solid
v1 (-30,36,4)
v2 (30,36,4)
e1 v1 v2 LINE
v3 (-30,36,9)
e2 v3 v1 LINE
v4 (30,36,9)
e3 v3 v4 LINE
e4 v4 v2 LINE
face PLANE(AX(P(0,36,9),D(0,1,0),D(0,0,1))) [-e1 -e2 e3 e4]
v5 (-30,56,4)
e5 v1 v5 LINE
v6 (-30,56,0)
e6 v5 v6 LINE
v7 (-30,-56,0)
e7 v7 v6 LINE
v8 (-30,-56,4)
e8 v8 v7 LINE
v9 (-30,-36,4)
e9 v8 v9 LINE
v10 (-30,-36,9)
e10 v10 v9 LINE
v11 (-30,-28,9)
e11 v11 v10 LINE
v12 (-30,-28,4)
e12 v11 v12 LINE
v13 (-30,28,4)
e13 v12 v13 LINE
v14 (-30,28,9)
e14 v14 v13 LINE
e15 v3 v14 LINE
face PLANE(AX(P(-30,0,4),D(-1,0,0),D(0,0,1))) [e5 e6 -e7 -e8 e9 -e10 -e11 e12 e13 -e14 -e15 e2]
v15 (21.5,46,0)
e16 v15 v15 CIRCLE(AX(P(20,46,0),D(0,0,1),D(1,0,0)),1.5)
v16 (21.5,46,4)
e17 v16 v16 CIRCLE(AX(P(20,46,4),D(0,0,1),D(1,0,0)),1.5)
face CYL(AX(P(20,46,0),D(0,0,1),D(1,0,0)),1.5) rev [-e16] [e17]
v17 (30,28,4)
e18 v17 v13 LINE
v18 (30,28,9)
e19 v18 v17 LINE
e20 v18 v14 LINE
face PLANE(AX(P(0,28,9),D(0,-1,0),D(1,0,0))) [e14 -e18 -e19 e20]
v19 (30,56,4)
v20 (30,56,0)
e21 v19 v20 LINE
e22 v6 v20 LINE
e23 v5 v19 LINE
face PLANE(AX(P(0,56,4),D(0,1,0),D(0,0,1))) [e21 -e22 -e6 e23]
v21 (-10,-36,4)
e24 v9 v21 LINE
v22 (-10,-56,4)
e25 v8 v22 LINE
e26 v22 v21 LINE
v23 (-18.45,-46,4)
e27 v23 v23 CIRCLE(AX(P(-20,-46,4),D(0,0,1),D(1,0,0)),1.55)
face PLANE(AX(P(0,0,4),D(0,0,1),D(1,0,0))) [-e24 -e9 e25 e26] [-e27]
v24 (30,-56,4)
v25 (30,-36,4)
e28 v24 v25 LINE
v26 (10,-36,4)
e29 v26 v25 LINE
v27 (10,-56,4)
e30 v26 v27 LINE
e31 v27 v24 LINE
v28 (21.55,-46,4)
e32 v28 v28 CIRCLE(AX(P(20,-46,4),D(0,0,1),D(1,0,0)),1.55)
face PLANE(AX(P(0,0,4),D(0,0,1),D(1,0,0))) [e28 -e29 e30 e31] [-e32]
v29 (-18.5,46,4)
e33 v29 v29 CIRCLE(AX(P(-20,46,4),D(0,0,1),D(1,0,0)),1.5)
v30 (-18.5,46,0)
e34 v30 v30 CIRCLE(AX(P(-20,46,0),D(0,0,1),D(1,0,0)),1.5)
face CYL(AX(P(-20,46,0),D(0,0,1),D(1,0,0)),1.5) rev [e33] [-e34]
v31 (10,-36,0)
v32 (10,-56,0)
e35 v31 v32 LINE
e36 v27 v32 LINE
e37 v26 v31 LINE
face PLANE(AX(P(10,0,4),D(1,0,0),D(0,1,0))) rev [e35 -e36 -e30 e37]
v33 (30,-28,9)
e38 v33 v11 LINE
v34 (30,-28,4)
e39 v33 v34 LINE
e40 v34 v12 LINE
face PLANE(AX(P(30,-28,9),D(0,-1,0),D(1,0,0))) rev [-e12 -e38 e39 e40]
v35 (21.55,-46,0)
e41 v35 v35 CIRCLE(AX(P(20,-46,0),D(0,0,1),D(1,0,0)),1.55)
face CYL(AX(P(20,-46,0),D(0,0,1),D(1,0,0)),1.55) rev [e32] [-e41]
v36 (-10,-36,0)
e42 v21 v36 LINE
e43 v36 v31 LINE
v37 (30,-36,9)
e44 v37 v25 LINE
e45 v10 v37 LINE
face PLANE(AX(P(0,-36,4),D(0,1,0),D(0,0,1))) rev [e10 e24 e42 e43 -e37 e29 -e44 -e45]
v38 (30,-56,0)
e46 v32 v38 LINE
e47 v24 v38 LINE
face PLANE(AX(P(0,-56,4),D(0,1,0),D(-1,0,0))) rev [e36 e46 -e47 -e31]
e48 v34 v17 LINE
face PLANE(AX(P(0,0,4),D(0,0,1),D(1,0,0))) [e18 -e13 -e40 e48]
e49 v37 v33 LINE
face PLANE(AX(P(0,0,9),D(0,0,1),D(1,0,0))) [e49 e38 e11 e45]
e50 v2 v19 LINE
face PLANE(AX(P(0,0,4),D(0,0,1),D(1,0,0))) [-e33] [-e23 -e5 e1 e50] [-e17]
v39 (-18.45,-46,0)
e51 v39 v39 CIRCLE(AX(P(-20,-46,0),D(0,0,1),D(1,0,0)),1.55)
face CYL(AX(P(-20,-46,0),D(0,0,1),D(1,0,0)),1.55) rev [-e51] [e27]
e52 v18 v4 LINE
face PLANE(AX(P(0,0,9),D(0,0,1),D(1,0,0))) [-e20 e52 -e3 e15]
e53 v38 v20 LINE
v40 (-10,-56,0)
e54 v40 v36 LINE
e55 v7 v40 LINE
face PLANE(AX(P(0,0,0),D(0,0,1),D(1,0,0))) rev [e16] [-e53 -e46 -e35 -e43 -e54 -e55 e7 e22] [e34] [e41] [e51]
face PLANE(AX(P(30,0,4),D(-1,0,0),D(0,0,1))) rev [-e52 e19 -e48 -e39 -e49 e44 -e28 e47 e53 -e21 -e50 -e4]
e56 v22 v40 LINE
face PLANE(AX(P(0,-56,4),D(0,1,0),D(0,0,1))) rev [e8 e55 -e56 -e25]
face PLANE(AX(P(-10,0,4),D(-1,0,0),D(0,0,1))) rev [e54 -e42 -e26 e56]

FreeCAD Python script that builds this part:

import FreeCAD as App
import Part
import Sketcher
from FreeCAD import Vector

doc = App.newDocument("Part")
body = doc.addObject("PartDesign::Body", "Body")

sketch1 = doc.addObject("Sketcher::SketchObject", "Sketch")
body.addObject(sketch1)
sketch1.AttachmentSupport = (doc.XY_Plane, [""])
sketch1.MapMode = "FlatFace"
sketch1.addGeometry(Part.LineSegment(Vector(10, -36, 0), Vector(10, -56, 0)), False)
sketch1.addGeometry(Part.LineSegment(Vector(10, -56, 0), Vector(30, -56, 0)), False)
sketch1.addGeometry(Part.LineSegment(Vector(30, -56, 0), Vector(30, 56, 0)), False)
sketch1.addGeometry(Part.LineSegment(Vector(30, 56, 0), Vector(-30, 56, 0)), False)
sketch1.addGeometry(Part.LineSegment(Vector(-30, 56, 0), Vector(-30, -56, 0)), False)
sketch1.addGeometry(Part.LineSegment(Vector(-30, -56, 0), Vector(-10, -56, 0)), False)
sketch1.addGeometry(Part.LineSegment(Vector(-10, -56, 0), Vector(-10, -36, 0)), False)
sketch1.addGeometry(Part.LineSegment(Vector(-10, -36, 0), Vector(10, -36, 0)), False)
sketch1.addConstraint(Sketcher.Constraint("Coincident", 0, 2, 1, 1))
sketch1.addConstraint(Sketcher.Constraint("Coincident", 1, 2, 2, 1))
sketch1.addConstraint(Sketcher.Constraint("Coincident", 2, 2, 3, 1))
sketch1.addConstraint(Sketcher.Constraint("Coincident", 3, 2, 4, 1))
sketch1.addConstraint(Sketcher.Constraint("Coincident", 4, 2, 5, 1))
sketch1.addConstraint(Sketcher.Constraint("Coincident", 5, 2, 6, 1))
sketch1.addConstraint(Sketcher.Constraint("Coincident", 6, 2, 7, 1))
sketch1.addConstraint(Sketcher.Constraint("Coincident", 7, 2, 0, 1))
sketch1.addConstraint(Sketcher.Constraint("Vertical", 0))
sketch1.addConstraint(Sketcher.Constraint("Horizontal", 1))
sketch1.addConstraint(Sketcher.Constraint("Vertical", 2))
sketch1.addConstraint(Sketcher.Constraint("Horizontal", 3))
sketch1.addConstraint(Sketcher.Constraint("Vertical", 4))
sketch1.addConstraint(Sketcher.Constraint("Horizontal", 5))
sketch1.addConstraint(Sketcher.Constraint("Vertical", 6))
sketch1.addConstraint(Sketcher.Constraint("Horizontal", 7))
sketch1.addConstraint(Sketcher.Constraint("Symmetric", 1, 2, 3, 2, -1, 1))
sketch1.addConstraint(Sketcher.Constraint("Symmetric", 0, 2, 5, 2, -2))
sketch1.addConstraint(Sketcher.Constraint("Equal", 5, 7))
sketch1.addConstraint(Sketcher.Constraint("Equal", 7, 0))
sketch1.addConstraint(Sketcher.Constraint("DistanceX", 1, 1, 1, 2, 20.0))
sketch1.addConstraint(Sketcher.Constraint("DistanceY", 2, 1, 2, 2, 112.0))
pad1 = doc.addObject("PartDesign::Pad", "Pad")
body.addObject(pad1)
pad1.Profile = sketch1
pad1.Length = 4

sketch2 = doc.addObject("Sketcher::SketchObject", "Sketch001")
body.addObject(sketch2)
sketch2.AttachmentSupport = (doc.XY_Plane, [""])
sketch2.MapMode = "FlatFace"
sketch2.AttachmentOffset = App.Placement(Vector(0, 0, 4), App.Rotation())
sketch2.addGeometry(Part.LineSegment(Vector(-30, 36, 0), Vector(-30, 28, 0)), False)
sketch2.addGeometry(Part.LineSegment(Vector(-30, 28, 0), Vector(30, 28, 0)), False)
sketch2.addGeometry(Part.LineSegment(Vector(30, 28, 0), Vector(30, 36, 0)), False)
sketch2.addGeometry(Part.LineSegment(Vector(30, 36, 0), Vector(-30, 36, 0)), False)
sketch2.addGeometry(Part.LineSegment(Vector(-30, -28, 0), Vector(-30, -36, 0)), False)
sketch2.addGeometry(Part.LineSegment(Vector(-30, -36, 0), Vector(30, -36, 0)), False)
sketch2.addGeometry(Part.LineSegment(Vector(30, -36, 0), Vector(30, -28, 0)), False)
sketch2.addGeometry(Part.LineSegment(Vector(30, -28, 0), Vector(-30, -28, 0)), False)
sketch2.addConstraint(Sketcher.Constraint("Coincident", 0, 2, 1, 1))
sketch2.addConstraint(Sketcher.Constraint("Coincident", 1, 2, 2, 1))
sketch2.addConstraint(Sketcher.Constraint("Coincident", 2, 2, 3, 1))
sketch2.addConstraint(Sketcher.Constraint("Coincident", 3, 2, 0, 1))
sketch2.addConstraint(Sketcher.Constraint("Coincident", 4, 2, 5, 1))
sketch2.addConstraint(Sketcher.Constraint("Coincident", 5, 2, 6, 1))
sketch2.addConstraint(Sketcher.Constraint("Coincident", 6, 2, 7, 1))
sketch2.addConstraint(Sketcher.Constraint("Coincident", 7, 2, 4, 1))
sketch2.addConstraint(Sketcher.Constraint("Vertical", 0))
sketch2.addConstraint(Sketcher.Constraint("Horizontal", 1))
sketch2.addConstraint(Sketcher.Constraint("Vertical", 2))
sketch2.addConstraint(Sketcher.Constraint("Horizontal", 3))
sketch2.addConstraint(Sketcher.Constraint("Vertical", 4))
sketch2.addConstraint(Sketcher.Constraint("Horizontal", 5))
sketch2.addConstraint(Sketcher.Constraint("Vertical", 6))
sketch2.addConstraint(Sketcher.Constraint("Horizontal", 7))
sketch2.addConstraint(Sketcher.Constraint("Symmetric", 2, 2, 4, 2, -1, 1))
sketch2.addConstraint(Sketcher.Constraint("Symmetric", 0, 2, 6, 2, -1, 1))
sketch2.addConstraint(Sketcher.Constraint("Vertical", 3, 2, 4, 2))
sketch2.addConstraint(Sketcher.Constraint("DistanceX", 1, 1, 1, 2, 60.0))
sketch2.addConstraint(Sketcher.Constraint("DistanceY", 0, 2, 0, 1, 8.0))
sketch2.addConstraint(Sketcher.Constraint("DistanceY", -1, 1, 0, 2, 28.0))
pad2 = doc.addObject("PartDesign::Pad", "Pad001")
body.addObject(pad2)
pad2.Profile = sketch2
pad2.Length = 5

sketch3 = doc.addObject("Sketcher::SketchObject", "Sketch002")
body.addObject(sketch3)
sketch3.AttachmentSupport = (doc.XY_Plane, [""])
sketch3.MapMode = "FlatFace"
sketch3.AttachmentOffset = App.Placement(Vector(0, 0, 4), App.Rotation())
sketch3.addGeometry(Part.Circle(Vector(-20, -46, 0), Vector(0, 0, 1), 1.6), False)
sketch3.addGeometry(Part.Circle(Vector(20, -46, 0), Vector(0, 0, 1), 1.6), False)
sketch3.addGeometry(Part.Circle(Vector(-20, 46, 0), Vector(0, 0, 1), 1.5), False)
sketch3.addGeometry(Part.Circle(Vector(20, 46, 0), Vector(0, 0, 1), 1.5), False)
sketch3.addConstraint(Sketcher.Constraint("Equal", 0, 1))
sketch3.addConstraint(Sketcher.Constraint("Equal", 2, 3))
sketch3.addConstraint(Sketcher.Constraint("Symmetric", 1, 3, 2, 3, -1, 1))
sketch3.addConstraint(Sketcher.Constraint("Symmetric", 0, 3, 3, 3, -1, 1))
sketch3.addConstraint(Sketcher.Constraint("Symmetric", 0, 3, 1, 3, -2))
sketch3.addConstraint(Sketcher.Constraint("Diameter", 2, 3.0))
sketch3.addConstraint(Sketcher.Constraint("Diameter", 0, 3.1))
sketch3.addConstraint(Sketcher.Constraint("DistanceX", 0, 3, -1, 1, 20.0))
sketch3.addConstraint(Sketcher.Constraint("DistanceY", 0, 3, -1, 1, 46.0))
pocket1 = doc.addObject("PartDesign::Pocket", "Pocket")
body.addObject(pocket1)
pocket1.Profile = sketch3
pocket1.Type = "ThroughAll"

doc.recompute()
